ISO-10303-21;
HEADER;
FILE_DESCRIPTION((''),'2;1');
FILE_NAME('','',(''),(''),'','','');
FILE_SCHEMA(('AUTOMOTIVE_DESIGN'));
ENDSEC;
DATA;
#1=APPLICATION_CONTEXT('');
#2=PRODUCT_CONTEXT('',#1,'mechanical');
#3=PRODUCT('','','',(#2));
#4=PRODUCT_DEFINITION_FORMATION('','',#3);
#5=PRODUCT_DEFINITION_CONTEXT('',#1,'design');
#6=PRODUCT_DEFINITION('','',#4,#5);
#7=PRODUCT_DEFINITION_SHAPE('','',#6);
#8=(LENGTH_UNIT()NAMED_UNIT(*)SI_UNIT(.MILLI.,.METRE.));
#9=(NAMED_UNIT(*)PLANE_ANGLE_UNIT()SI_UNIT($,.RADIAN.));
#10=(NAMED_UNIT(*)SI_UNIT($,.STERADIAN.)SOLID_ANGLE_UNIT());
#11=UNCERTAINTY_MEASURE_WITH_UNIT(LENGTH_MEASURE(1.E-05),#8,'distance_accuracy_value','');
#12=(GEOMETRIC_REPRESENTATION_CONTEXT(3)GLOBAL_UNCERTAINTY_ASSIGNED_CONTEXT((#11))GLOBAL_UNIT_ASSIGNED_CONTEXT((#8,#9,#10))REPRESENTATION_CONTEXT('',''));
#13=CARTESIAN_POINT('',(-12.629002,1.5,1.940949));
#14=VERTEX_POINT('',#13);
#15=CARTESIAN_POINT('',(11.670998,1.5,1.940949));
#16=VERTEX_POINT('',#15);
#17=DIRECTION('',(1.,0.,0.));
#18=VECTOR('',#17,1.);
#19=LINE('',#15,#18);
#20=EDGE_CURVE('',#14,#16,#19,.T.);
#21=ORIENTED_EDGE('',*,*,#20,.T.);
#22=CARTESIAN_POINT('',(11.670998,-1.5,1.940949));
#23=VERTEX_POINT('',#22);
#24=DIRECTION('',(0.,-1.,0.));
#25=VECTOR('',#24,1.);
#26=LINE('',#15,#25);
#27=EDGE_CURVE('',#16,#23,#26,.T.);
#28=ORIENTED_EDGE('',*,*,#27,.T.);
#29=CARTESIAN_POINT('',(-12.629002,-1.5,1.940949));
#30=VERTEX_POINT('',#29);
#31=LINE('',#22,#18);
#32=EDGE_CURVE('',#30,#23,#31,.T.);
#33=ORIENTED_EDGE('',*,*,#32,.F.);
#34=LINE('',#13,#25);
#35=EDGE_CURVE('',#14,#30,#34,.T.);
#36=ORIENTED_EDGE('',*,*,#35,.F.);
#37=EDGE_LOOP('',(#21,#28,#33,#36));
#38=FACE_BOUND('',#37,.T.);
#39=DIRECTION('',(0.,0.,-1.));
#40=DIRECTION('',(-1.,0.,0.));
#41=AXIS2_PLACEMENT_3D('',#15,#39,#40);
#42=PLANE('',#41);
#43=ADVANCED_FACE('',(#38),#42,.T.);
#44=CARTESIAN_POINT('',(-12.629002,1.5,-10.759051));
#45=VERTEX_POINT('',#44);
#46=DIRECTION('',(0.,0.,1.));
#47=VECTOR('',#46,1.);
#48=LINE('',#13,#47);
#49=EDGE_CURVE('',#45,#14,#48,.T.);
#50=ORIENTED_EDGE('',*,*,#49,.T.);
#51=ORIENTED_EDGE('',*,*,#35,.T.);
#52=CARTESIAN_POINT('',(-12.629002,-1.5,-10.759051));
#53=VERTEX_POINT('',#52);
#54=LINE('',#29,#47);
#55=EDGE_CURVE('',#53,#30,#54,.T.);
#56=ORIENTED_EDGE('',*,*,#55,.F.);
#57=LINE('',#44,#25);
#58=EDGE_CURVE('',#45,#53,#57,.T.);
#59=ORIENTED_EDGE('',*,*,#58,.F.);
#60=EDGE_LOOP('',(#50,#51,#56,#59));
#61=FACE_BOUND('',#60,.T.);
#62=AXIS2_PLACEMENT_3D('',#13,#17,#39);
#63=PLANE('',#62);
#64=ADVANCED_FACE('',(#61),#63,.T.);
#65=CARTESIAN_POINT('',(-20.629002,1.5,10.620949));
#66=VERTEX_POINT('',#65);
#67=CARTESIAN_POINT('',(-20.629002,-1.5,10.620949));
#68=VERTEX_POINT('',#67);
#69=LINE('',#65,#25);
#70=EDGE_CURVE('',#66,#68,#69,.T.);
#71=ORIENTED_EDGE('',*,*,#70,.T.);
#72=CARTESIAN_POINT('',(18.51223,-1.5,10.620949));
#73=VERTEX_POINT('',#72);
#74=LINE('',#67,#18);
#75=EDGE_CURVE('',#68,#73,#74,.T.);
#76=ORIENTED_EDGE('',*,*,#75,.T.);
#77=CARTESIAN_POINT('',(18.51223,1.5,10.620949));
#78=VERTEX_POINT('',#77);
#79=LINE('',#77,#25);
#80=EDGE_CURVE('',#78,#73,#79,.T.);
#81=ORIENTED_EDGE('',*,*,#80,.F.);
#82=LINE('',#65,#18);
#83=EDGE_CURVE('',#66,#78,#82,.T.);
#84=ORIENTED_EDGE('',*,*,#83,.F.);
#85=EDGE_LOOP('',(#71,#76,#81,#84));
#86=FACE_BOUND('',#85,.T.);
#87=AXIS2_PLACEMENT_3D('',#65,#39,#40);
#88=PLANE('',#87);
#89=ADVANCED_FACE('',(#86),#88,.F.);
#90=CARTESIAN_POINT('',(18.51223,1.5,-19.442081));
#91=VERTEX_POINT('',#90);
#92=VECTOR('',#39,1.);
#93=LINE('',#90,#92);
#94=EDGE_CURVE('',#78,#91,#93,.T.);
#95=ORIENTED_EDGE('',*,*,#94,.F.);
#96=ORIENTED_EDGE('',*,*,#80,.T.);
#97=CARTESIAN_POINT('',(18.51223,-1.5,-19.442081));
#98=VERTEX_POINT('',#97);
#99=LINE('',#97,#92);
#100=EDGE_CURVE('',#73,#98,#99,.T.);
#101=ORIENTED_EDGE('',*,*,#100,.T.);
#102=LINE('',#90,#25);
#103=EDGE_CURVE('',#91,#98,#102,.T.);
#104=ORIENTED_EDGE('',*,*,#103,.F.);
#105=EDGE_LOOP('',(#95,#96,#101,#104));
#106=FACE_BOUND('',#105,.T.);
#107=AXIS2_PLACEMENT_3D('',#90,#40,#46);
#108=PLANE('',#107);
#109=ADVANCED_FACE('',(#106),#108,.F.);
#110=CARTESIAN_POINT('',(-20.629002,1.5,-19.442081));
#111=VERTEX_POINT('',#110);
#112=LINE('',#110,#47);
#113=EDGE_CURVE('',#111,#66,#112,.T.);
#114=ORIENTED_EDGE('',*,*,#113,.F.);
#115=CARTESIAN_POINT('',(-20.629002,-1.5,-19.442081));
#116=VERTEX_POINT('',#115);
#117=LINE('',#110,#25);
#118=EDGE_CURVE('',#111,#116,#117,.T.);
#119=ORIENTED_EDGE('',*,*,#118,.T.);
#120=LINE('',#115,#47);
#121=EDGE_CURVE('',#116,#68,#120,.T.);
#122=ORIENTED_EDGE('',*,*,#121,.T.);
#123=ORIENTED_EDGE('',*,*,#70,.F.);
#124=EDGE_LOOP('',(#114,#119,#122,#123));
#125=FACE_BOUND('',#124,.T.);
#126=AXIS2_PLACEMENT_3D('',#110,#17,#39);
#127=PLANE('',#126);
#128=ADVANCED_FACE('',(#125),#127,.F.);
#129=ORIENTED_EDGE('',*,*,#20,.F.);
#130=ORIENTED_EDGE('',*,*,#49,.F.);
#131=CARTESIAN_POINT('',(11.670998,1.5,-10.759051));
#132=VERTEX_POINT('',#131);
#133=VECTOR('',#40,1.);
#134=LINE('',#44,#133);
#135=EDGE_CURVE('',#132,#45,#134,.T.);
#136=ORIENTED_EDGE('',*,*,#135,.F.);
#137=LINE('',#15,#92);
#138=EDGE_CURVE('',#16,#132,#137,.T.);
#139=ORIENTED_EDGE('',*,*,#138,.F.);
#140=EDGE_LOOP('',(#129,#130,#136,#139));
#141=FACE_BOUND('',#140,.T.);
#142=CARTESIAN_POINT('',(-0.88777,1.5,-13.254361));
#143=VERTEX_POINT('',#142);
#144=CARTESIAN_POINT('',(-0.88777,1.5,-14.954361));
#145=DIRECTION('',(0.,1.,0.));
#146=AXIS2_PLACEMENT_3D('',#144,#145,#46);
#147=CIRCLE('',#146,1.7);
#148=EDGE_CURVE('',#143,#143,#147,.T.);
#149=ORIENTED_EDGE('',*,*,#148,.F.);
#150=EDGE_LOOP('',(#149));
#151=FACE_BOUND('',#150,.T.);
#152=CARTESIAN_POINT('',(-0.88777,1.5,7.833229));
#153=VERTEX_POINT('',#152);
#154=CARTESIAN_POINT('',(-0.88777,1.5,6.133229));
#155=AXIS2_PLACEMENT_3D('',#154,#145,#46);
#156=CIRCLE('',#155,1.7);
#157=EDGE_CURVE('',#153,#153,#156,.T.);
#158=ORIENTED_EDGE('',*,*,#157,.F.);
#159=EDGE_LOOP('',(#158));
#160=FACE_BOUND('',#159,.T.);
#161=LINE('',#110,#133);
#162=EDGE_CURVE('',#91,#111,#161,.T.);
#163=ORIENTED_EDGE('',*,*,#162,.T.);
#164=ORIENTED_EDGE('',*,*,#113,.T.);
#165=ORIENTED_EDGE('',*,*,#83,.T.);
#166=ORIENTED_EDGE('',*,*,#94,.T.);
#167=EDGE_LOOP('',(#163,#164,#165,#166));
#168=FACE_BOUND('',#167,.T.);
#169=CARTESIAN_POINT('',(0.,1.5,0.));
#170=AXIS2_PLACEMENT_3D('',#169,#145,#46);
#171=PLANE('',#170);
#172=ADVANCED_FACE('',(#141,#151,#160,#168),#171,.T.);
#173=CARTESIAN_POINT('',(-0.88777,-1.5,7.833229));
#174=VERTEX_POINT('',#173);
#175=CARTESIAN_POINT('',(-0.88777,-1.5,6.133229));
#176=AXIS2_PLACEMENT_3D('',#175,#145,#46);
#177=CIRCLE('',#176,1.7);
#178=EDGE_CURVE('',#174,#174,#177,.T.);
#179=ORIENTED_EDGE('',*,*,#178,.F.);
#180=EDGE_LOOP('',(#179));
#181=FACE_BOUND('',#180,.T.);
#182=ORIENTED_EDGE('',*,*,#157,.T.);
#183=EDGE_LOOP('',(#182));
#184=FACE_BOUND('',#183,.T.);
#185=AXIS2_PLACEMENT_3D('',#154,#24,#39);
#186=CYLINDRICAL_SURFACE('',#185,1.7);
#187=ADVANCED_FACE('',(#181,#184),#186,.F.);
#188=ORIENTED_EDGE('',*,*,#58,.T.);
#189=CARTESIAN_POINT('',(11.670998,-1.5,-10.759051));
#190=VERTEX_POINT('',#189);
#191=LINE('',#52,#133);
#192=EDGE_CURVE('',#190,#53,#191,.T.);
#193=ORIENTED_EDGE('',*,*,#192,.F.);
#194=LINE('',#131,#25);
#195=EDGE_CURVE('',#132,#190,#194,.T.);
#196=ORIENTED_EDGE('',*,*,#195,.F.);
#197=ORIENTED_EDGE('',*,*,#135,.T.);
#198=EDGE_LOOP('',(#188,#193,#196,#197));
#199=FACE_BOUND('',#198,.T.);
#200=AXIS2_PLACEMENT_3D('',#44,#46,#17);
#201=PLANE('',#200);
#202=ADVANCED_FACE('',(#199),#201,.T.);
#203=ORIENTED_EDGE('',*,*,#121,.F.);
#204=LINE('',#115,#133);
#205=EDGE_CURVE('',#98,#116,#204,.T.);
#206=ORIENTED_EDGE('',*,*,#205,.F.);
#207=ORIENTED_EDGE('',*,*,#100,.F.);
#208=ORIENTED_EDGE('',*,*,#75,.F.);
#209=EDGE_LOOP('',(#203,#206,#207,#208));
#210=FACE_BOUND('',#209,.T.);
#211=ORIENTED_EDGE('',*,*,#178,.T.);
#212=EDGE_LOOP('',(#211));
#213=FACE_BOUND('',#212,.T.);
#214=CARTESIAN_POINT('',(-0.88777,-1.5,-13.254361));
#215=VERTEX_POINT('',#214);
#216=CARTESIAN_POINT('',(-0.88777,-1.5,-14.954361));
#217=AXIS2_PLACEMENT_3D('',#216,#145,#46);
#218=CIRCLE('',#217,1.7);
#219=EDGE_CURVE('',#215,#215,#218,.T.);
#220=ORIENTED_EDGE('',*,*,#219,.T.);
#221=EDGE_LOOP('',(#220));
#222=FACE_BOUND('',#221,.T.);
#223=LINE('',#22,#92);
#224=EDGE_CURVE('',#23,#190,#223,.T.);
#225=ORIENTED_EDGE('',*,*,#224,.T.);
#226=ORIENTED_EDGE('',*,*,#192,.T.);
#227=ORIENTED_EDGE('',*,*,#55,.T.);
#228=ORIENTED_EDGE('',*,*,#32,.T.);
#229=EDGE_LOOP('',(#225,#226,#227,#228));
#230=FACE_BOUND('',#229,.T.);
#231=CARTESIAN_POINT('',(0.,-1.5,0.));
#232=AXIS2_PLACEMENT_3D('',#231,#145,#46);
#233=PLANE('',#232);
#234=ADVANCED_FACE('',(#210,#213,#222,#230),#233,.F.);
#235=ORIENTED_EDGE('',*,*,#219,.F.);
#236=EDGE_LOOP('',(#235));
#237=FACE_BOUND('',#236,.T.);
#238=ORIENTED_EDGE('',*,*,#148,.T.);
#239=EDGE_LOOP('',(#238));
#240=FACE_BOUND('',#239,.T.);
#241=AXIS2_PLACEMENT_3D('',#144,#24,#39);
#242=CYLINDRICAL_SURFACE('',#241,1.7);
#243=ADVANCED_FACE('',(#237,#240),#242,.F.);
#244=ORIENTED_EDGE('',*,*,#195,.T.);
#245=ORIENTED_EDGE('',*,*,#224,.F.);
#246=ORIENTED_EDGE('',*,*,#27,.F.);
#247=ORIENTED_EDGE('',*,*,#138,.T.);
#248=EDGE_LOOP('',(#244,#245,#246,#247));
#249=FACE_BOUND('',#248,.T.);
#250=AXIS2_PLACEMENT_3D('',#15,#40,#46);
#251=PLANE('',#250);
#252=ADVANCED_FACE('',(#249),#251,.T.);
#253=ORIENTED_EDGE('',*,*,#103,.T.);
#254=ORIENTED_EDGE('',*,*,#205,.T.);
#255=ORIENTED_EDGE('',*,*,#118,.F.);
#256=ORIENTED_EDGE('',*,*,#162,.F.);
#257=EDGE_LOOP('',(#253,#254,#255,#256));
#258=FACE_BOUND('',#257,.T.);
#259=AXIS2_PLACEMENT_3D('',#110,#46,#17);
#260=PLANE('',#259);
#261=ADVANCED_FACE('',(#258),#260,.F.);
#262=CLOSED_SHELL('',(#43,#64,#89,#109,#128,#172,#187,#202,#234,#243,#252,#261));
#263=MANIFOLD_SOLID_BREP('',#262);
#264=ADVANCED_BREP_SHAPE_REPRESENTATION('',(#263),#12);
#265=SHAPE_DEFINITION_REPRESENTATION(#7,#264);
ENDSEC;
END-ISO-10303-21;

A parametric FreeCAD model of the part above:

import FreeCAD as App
import Part
import Sketcher
from FreeCAD import Vector


def add_polygon(sketch, points):
    """Adds a closed chain of lines whose ends are joined by coincident constraints."""
    first, n = sketch.GeometryCount, len(points)
    for a, b in zip(points, points[1:] + points[:1]):
        sketch.addGeometry(Part.LineSegment(App.Vector(*a, 0), App.Vector(*b, 0)), False)
    for i in range(n):
        sketch.addConstraint(Sketcher.Constraint("Coincident", first + i, 2, first + (i + 1) % n, 1))

doc = App.newDocument("Part")
body = doc.addObject("PartDesign::Body", "Body")

# Sketch on XZ plane
sketch1 = body.newObject("Sketcher::SketchObject", "Sketch")
sketch1.AttachmentSupport = (doc.getObject("XZ_Plane"), [""])
sketch1.MapMode = "FlatFace"
add_polygon(sketch1, [(-20.6, -19.4), (-20.6, 10.6), (18.5, 10.6), (18.5, -19.4)])  # lines 0-3
sketch1.addGeometry(Part.Circle(Vector(-0.9, 6.1, 0), Vector(0, 0, 1), 1.7), False)  # 4
add_polygon(sketch1, [(11.7, 1.9), (-12.6, 1.9), (-12.6, -10.8), (11.7, -10.8)])  # lines 5-8
sketch1.addGeometry(Part.Circle(Vector(-0.9, -15, 0), Vector(0, 0, 1), 1.7), False)  # 9
sketch1.addConstraint([
    Sketcher.Constraint("Vertical", 0),
    Sketcher.Constraint("Horizontal", 1),
    Sketcher.Constraint("Vertical", 2),
    Sketcher.Constraint("Horizontal", 3),
    Sketcher.Constraint("Horizontal", 5),
    Sketcher.Constraint("Vertical", 6),
    Sketcher.Constraint("Horizontal", 7),
    Sketcher.Constraint("Vertical", 8),
    Sketcher.Constraint("Equal", 4, 9),
    Sketcher.Constraint("Vertical", 4, 3, 9, 3),
    Sketcher.Constraint("Diameter", 4, 3.4),
    Sketcher.Constraint("DistanceX", 5, 2, 5, 1, 24.3),
    Sketcher.Constraint("DistanceY", 6, 2, 6, 1, 12.7),
    Sketcher.Constraint("DistanceX", 0, 2, 5, 2, 8.0),
    Sketcher.Constraint("DistanceX", 4, 3, 1, 2, 19.4),
    Sketcher.Constraint("DistanceY", 5, 2, 0, 2, 8.68),
    Sketcher.Constraint("DistanceX", 0, 2, -1, 1, 20.629002),
    Sketcher.Constraint("DistanceX", 1, 1, 1, 2, 39.141232),
    Sketcher.Constraint("DistanceY", 0, 1, 0, 2, 30.06303),
    Sketcher.Constraint("DistanceY", -1, 1, 4, 3, 6.133229),
    Sketcher.Constraint("DistanceY", 9, 3, -1, 1, 14.954361),
    Sketcher.Constraint("DistanceY", -1, 1, 0, 2, 10.620949),
])
pad1 = body.newObject("PartDesign::Pad", "Pad")
pad1.Profile = sketch1
pad1.Length = 3
pad1.Midplane = True

doc.recompute()
